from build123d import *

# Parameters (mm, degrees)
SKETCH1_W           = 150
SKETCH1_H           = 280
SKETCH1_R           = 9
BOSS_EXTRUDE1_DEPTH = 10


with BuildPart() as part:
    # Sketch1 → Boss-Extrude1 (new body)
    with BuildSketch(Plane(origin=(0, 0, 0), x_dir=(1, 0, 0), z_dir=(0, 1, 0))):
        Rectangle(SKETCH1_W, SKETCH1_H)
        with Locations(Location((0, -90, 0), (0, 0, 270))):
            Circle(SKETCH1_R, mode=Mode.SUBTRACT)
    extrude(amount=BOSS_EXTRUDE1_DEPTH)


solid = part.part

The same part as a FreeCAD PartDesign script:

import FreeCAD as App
import Part
import Sketcher

V = App.Vector
Q = App.Units.Quantity


def add_polygon(sketch, points):
    """Adds a closed chain of lines whose ends are joined by coincident constraints."""
    first, n = sketch.GeometryCount, len(points)
    for a, b in zip(points, points[1:] + points[:1]):
        sketch.addGeometry(Part.LineSegment(App.Vector(*a, 0), App.Vector(*b, 0)), False)
    for i in range(n):
        sketch.addConstraint(Sketcher.Constraint("Coincident", first + i, 2, first + (i + 1) % n, 1))

doc = App.newDocument("Part")
params = doc.addObject("Spreadsheet::Sheet", "Params")
for row, (alias, value) in enumerate([
    ("sketch1_diameter", "18 mm"),
    ("sketch1_width", "150 mm"),
    ("sketch1_height", "280 mm"),
    ("pad1_length", "10 mm"),
], start=1):
    params.set(f"A{row}", alias)
    params.set(f"B{row}", "=" + value)
    params.setAlias(f"B{row}", alias)

body = doc.addObject("PartDesign::Body", "Body")

sketch1 = doc.addObject("Sketcher::SketchObject", "Sketch")
body.addObject(sketch1)
sketch1.AttachmentSupport = (doc.XZ_Plane, [""])
sketch1.MapMode = "FlatFace"
add_polygon(sketch1, [(-75, -140), (-75, 140), (75, 140), (75, -140)])
sketch1.addGeometry(Part.Circle(V(0, 90, 0), V(0, 0, 1), 9), False)
sketch1.addConstraint([
    Sketcher.Constraint("Vertical", 0),
    Sketcher.Constraint("Horizontal", 1),
    Sketcher.Constraint("Vertical", 2),
    Sketcher.Constraint("Horizontal", 3),
    Sketcher.Constraint("Symmetric", 0, 2, 2, 2, -1, 1),
    Sketcher.Constraint("PointOnObject", 4, 3, -2),
    Sketcher.Constraint("Diameter", 4, Q("18 mm")),
    Sketcher.Constraint("DistanceX", 1, 1, 1, 2, Q("150 mm")),
    Sketcher.Constraint("DistanceY", 0, 1, 0, 2, Q("280 mm")),
    Sketcher.Constraint("DistanceY", -1, 1, 4, 3, Q("90 mm")),
])
sketch1.setExpression("Constraints[10]", "Params.sketch1_diameter")
sketch1.setExpression("Constraints[11]", "Params.sketch1_width")
sketch1.setExpression("Constraints[12]", "Params.sketch1_height")
pad1 = doc.addObject("PartDesign::Pad", "Pad")
body.addObject(pad1)
pad1.Profile = sketch1
pad1.setExpression("Length", "Params.pad1_length")
pad1.Reversed = True

doc.recompute()
